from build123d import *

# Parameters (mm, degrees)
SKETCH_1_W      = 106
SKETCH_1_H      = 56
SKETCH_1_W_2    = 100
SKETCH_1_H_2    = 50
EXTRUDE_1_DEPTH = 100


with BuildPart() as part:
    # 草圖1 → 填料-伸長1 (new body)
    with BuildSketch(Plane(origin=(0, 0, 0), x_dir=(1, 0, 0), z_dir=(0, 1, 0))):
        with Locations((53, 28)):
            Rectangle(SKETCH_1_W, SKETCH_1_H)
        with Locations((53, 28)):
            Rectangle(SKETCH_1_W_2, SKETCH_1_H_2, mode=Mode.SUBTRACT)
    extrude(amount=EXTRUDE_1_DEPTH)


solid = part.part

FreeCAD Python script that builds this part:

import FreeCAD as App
import Part
import Sketcher
from FreeCAD import Vector
Q = App.Units.Quantity


def add_polygon(sketch, points):
    """Adds a closed chain of lines whose ends are joined by coincident constraints."""
    first, n = sketch.GeometryCount, len(points)
    for a, b in zip(points, points[1:] + points[:1]):
        sketch.addGeometry(Part.LineSegment(App.Vector(*a, 0), App.Vector(*b, 0)), False)
    for i in range(n):
        sketch.addConstraint(Sketcher.Constraint("Coincident", first + i, 2, first + (i + 1) % n, 1))

doc = App.newDocument("Part")
body = doc.addObject("PartDesign::Body", "Body")

# Sketch on XZ plane
sketch1 = body.newObject("Sketcher::SketchObject", "Sketch")
sketch1.AttachmentSupport = (doc.getObject("XZ_Plane"), [""])
sketch1.MapMode = "FlatFace"
add_polygon(sketch1, [(0, -56), (0, 0), (106, 0), (106, -56)])  # lines 0-3
add_polygon(sketch1, [(103, -3), (3, -3), (3, -53), (103, -53)])  # lines 4-7
sketch1.addConstraint(Sketcher.Constraint("Vertical", 0))
sketch1.addConstraint(Sketcher.Constraint("Horizontal", 1))
sketch1.addConstraint(Sketcher.Constraint("Vertical", 2))
sketch1.addConstraint(Sketcher.Constraint("Horizontal", 3))
sketch1.addConstraint(Sketcher.Constraint("Horizontal", 4))
sketch1.addConstraint(Sketcher.Constraint("Vertical", 5))
sketch1.addConstraint(Sketcher.Constraint("Horizontal", 6))
sketch1.addConstraint(Sketcher.Constraint("Vertical", 7))
sketch1.addConstraint(Sketcher.Constraint("Coincident", 0, 2, -1, 1))
sketch1.addConstraint(Sketcher.Constraint("DistanceX", 1, 1, 1, 2, Q("106 mm")))
sketch1.addConstraint(Sketcher.Constraint("DistanceX", 4, 2, 4, 1, Q("100 mm")))
sketch1.addConstraint(Sketcher.Constraint("DistanceY", 0, 1, 0, 2, Q("56 mm")))
sketch1.addConstraint(Sketcher.Constraint("DistanceY", 5, 2, 5, 1, Q("50 mm")))
sketch1.addConstraint(Sketcher.Constraint("DistanceX", -1, 1, 4, 2, Q("3 mm")))
sketch1.addConstraint(Sketcher.Constraint("DistanceY", 4, 2, -1, 1, Q("3 mm")))
pad1 = body.newObject("PartDesign::Pad", "Pad")
pad1.Profile = sketch1
pad1.Length = 100
pad1.Reversed = True

doc.recompute()
